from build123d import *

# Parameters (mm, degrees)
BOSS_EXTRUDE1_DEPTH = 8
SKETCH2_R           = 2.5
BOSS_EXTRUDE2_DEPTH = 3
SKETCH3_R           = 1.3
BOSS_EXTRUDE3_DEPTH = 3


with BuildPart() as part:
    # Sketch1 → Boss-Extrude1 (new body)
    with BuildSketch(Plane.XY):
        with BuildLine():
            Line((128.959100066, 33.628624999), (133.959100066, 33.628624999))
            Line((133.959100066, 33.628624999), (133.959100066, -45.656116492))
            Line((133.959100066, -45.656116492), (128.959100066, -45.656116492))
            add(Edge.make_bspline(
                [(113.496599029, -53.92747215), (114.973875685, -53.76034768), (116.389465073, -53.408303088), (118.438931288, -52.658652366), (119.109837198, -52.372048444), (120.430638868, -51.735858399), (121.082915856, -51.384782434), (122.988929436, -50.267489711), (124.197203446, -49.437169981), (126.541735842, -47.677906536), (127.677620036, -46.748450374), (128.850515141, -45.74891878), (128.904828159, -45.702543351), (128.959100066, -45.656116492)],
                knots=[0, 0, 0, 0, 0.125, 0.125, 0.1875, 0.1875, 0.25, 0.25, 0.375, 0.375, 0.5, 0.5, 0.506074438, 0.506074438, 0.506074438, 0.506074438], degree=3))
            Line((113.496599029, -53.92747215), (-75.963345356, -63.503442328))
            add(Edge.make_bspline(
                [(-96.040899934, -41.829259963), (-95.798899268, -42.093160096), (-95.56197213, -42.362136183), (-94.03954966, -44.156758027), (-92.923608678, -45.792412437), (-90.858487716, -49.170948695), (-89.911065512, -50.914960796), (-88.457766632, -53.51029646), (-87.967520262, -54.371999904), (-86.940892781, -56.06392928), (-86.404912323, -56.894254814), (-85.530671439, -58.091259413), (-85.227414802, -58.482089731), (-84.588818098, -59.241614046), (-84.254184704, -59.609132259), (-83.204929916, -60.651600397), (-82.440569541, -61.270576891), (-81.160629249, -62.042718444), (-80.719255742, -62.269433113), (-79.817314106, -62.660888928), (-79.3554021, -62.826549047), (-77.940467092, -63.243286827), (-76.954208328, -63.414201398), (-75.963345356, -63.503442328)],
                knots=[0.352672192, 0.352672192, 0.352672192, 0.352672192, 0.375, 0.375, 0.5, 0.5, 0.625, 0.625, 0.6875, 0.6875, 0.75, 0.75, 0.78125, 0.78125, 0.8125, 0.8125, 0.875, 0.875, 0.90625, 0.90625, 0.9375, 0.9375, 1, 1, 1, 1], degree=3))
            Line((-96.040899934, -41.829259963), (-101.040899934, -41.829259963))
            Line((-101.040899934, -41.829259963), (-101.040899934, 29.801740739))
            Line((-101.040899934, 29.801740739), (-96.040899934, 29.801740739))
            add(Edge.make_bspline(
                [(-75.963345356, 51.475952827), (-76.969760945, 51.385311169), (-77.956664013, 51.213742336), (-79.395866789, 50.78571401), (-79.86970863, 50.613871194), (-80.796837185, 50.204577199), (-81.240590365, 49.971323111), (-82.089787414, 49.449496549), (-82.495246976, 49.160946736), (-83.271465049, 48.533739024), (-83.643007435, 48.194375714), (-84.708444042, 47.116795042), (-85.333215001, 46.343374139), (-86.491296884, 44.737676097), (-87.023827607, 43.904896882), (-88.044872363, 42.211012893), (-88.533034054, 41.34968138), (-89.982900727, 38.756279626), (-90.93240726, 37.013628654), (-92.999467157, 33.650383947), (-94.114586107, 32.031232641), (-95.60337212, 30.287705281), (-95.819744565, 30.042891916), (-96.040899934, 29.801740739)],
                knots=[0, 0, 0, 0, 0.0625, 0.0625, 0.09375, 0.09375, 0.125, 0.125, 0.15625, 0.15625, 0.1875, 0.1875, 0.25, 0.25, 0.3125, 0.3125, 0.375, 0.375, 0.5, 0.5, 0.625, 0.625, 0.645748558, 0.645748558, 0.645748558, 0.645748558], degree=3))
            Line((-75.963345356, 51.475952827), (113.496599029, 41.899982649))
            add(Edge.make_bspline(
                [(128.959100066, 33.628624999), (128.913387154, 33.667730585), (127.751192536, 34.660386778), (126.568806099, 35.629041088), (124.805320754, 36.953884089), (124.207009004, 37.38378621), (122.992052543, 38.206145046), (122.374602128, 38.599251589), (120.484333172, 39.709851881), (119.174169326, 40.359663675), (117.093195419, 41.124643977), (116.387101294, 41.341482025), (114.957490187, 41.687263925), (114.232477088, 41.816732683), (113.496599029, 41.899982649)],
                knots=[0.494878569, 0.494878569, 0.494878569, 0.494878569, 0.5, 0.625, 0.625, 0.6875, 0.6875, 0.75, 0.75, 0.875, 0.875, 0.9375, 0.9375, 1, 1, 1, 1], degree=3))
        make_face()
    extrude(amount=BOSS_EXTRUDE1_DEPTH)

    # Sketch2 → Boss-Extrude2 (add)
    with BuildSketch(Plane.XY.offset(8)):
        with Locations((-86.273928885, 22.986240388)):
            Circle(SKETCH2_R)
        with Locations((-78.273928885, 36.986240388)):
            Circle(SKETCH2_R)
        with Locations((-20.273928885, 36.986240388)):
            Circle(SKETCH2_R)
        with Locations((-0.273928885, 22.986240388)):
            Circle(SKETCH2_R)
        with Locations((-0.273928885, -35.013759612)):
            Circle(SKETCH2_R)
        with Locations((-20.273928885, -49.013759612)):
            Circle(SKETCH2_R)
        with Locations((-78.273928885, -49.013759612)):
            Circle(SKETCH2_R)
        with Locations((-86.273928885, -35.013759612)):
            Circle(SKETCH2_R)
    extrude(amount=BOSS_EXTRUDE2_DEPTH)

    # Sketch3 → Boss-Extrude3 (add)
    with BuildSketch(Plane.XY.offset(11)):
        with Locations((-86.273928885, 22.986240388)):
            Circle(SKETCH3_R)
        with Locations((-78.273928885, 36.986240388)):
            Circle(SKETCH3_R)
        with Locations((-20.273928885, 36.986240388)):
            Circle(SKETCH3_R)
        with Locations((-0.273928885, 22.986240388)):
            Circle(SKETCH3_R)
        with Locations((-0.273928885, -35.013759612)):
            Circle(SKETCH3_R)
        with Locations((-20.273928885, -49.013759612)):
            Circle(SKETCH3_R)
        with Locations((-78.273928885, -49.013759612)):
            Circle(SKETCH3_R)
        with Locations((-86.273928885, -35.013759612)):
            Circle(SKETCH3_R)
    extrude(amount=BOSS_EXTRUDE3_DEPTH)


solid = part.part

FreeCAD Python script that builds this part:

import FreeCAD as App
import Part
import Sketcher

V = App.Vector

doc = App.newDocument("Part")
body = doc.addObject("PartDesign::Body", "Body")

# Sketch on XY plane
sketch1 = body.newObject("Sketcher::SketchObject", "Sketch")
sketch1.AttachmentSupport = (doc.getObject("XY_Plane"), [""])
sketch1.MapMode = "FlatFace"
sketch1.addGeometry([
    Part.LineSegment(V(133.9591, 33.628625, 0), V(128.9591, 33.628625, 0)),  # 0
    Part.BSplineCurve([V(128.9591, 33.628625, 0), V(128.913387, 33.667731, 0), V(127.751193, 34.660387, 0), V(126.568806, 35.629041, 0), V(124.805321, 36.953884, 0), V(124.207009, 37.383786, 0), V(122.992053, 38.206145, 0), V(122.374602, 38.599252, 0), V(120.484333, 39.709852, 0), V(119.174169, 40.359664, 0), V(117.093195, 41.124644, 0), V(116.387101, 41.341482, 0), V(114.95749, 41.687264, 0), V(114.232477, 41.816733, 0), V(113.496599, 41.899983, 0)], [4, 1, 2, 2, 2, 2, 2, 4], [0.494878569, 0.5, 0.625, 0.6875, 0.75, 0.875, 0.9375, 1], False, 3, [1, 1, 1, 1, 1, 1, 1, 1, 1, 1, 1, 1, 1, 1, 1], False),  # 1
    Part.LineSegment(V(113.496599, 41.899983, 0), V(-75.963345, 51.475953, 0)),  # 2
    Part.BSplineCurve([V(-75.963345, 51.475953, 0), V(-76.969761, 51.385311, 0), V(-77.956664, 51.213742, 0), V(-79.395867, 50.785714, 0), V(-79.869709, 50.613871, 0), V(-80.796837, 50.204577, 0), V(-81.24059, 49.971323, 0), V(-82.089787, 49.449497, 0), V(-82.495247, 49.160947, 0), V(-83.271465, 48.533739, 0), V(-83.643007, 48.194376, 0), V(-84.708444, 47.116795, 0), V(-85.333215, 46.343374, 0), V(-86.491297, 44.737676, 0), V(-87.023828, 43.904897, 0), V(-88.044872, 42.211013, 0), V(-88.533034, 41.349681, 0), V(-89.982901, 38.75628, 0), V(-90.932407, 37.013629, 0), V(-92.999467, 33.650384, 0), V(-94.114586, 32.031233, 0), V(-95.603372, 30.287705, 0), V(-95.819745, 30.042892, 0), V(-96.0409, 29.801741, 0)], [4, 2, 2, 2, 2, 2, 2, 2, 2, 2, 2, 4], [0, 0.0625, 0.09375, 0.125, 0.15625, 0.1875, 0.25, 0.3125, 0.375, 0.5, 0.625, 0.645748558], False, 3, [1, 1, 1, 1, 1, 1, 1, 1, 1, 1, 1, 1, 1, 1, 1, 1, 1, 1, 1, 1, 1, 1, 1, 1], False),  # 3
    Part.LineSegment(V(-96.0409, 29.801741, 0), V(-101.0409, 29.801741, 0)),  # 4
    Part.LineSegment(V(-101.0409, 29.801741, 0), V(-101.0409, -41.82926, 0)),  # 5
    Part.LineSegment(V(-101.0409, -41.82926, 0), V(-96.0409, -41.82926, 0)),  # 6
    Part.BSplineCurve([V(-96.0409, -41.82926, 0), V(-95.798899, -42.09316, 0), V(-95.561972, -42.362136, 0), V(-94.03955, -44.156758, 0), V(-92.923609, -45.792412, 0), V(-90.858488, -49.170949, 0), V(-89.911066, -50.914961, 0), V(-88.457767, -53.510296, 0), V(-87.96752, -54.372, 0), V(-86.940893, -56.063929, 0), V(-86.404912, -56.894255, 0), V(-85.530671, -58.091259, 0), V(-85.227415, -58.48209, 0), V(-84.588818, -59.241614, 0), V(-84.254185, -59.609132, 0), V(-83.20493, -60.6516, 0), V(-82.44057, -61.270577, 0), V(-81.160629, -62.042718, 0), V(-80.719256, -62.269433, 0), V(-79.817314, -62.660889, 0), V(-79.355402, -62.826549, 0), V(-77.940467, -63.243287, 0), V(-76.954208, -63.414201, 0), V(-75.963345, -63.503442, 0)], [4, 2, 2, 2, 2, 2, 2, 2, 2, 2, 2, 4], [0.352672192, 0.375, 0.5, 0.625, 0.6875, 0.75, 0.78125, 0.8125, 0.875, 0.90625, 0.9375, 1], False, 3, [1, 1, 1, 1, 1, 1, 1, 1, 1, 1, 1, 1, 1, 1, 1, 1, 1, 1, 1, 1, 1, 1, 1, 1], False),  # 7
    Part.LineSegment(V(-75.963345, -63.503442, 0), V(113.496599, -53.927472, 0)),  # 8
    Part.BSplineCurve([V(113.496599, -53.927472, 0), V(114.973876, -53.760348, 0), V(116.389465, -53.408303, 0), V(118.438931, -52.658652, 0), V(119.109837, -52.372048, 0), V(120.430639, -51.735858, 0), V(121.082916, -51.384782, 0), V(122.988929, -50.26749, 0), V(124.197203, -49.43717, 0), V(126.541736, -47.677907, 0), V(127.67762, -46.74845, 0), V(128.850515, -45.748919, 0), V(128.904828, -45.702543, 0), V(128.9591, -45.656116, 0)], [4, 2, 2, 2, 2, 2, 4], [0, 0.125, 0.1875, 0.25, 0.375, 0.5, 0.506074438], False, 3, [1, 1, 1, 1, 1, 1, 1, 1, 1, 1, 1, 1, 1, 1], False),  # 9
    Part.LineSegment(V(128.9591, -45.656116, 0), V(133.9591, -45.656116, 0)),  # 10
    Part.LineSegment(V(133.9591, -45.656116, 0), V(133.9591, 33.628625, 0)),  # 11
], False)
sketch1.addConstraint([
    Sketcher.Constraint("Block", 1),
    Sketcher.Constraint("Block", 3),
    Sketcher.Constraint("Block", 7),
    Sketcher.Constraint("Block", 9),
    Sketcher.Constraint("Coincident", 0, 2, 1, 1),
    Sketcher.Constraint("Coincident", 1, 2, 2, 1),
    Sketcher.Constraint("Coincident", 2, 2, 3, 1),
    Sketcher.Constraint("Coincident", 3, 2, 4, 1),
    Sketcher.Constraint("Coincident", 4, 2, 5, 1),
    Sketcher.Constraint("Coincident", 5, 2, 6, 1),
    Sketcher.Constraint("Coincident", 6, 2, 7, 1),
    Sketcher.Constraint("Coincident", 7, 2, 8, 1),
    Sketcher.Constraint("Coincident", 8, 2, 9, 1),
    Sketcher.Constraint("Coincident", 9, 2, 10, 1),
    Sketcher.Constraint("Coincident", 10, 2, 11, 1),
    Sketcher.Constraint("Coincident", 11, 2, 0, 1),
    Sketcher.Constraint("Horizontal", 0),
    Sketcher.Constraint("Horizontal", 4),
    Sketcher.Constraint("Vertical", 5),
    Sketcher.Constraint("Horizontal", 6),
    Sketcher.Constraint("Horizontal", 10),
    Sketcher.Constraint("Vertical", 11),
    Sketcher.Constraint("Equal", 0, 4),
    Sketcher.Constraint("DistanceX", 0, 2, 0, 1, 5.0),
])
pad1 = body.newObject("PartDesign::Pad", "Pad")
pad1.Profile = sketch1
pad1.Length = 8

# Sketch on XY plane
sketch2 = body.newObject("Sketcher::SketchObject", "Sketch001")
sketch2.AttachmentSupport = (doc.getObject("XY_Plane"), [""])
sketch2.MapMode = "FlatFace"
sketch2.AttachmentOffset = App.Placement(V(0, 0, 8), App.Rotation())
sketch2.addGeometry([
    Part.Circle(V(-86.3, 23, 0), V(0, 0, 1), 2.5),  # 0
    Part.Circle(V(-78.3, 37, 0), V(0, 0, 1), 2.5),  # 1
    Part.Circle(V(-20.3, 37, 0), V(0, 0, 1), 2.5),  # 2
    Part.Circle(V(-0.3, 23, 0), V(0, 0, 1), 2.5),  # 3
    Part.Circle(V(-0.3, -35, 0), V(0, 0, 1), 2.5),  # 4
    Part.Circle(V(-20.3, -49, 0), V(0, 0, 1), 2.5),  # 5
    Part.Circle(V(-78.3, -49, 0), V(0, 0, 1), 2.5),  # 6
    Part.Circle(V(-86.3, -35, 0), V(0, 0, 1), 2.5),  # 7
], False)
sketch2.addConstraint([
    Sketcher.Constraint("Equal", 0, 1),
    Sketcher.Constraint("Equal", 1, 2),
    Sketcher.Constraint("Equal", 2, 3),
    Sketcher.Constraint("Equal", 3, 4),
    Sketcher.Constraint("Equal", 4, 5),
    Sketcher.Constraint("Equal", 5, 6),
    Sketcher.Constraint("Equal", 6, 7),
    Sketcher.Constraint("Horizontal", 1, 3, 2, 3),
    Sketcher.Constraint("Horizontal", 0, 3, 3, 3),
    Sketcher.Constraint("Horizontal", 5, 3, 6, 3),
    Sketcher.Constraint("Horizontal", 4, 3, 7, 3),
    Sketcher.Constraint("Vertical", 3, 3, 4, 3),
    Sketcher.Constraint("Vertical", 2, 3, 5, 3),
    Sketcher.Constraint("Vertical", 1, 3, 6, 3),
    Sketcher.Constraint("Vertical", 0, 3, 7, 3),
    Sketcher.Constraint("Diameter", 0, 5.0),
    Sketcher.Constraint("DistanceX", 0, 3, 1, 3, 8.0),
    Sketcher.Constraint("DistanceY", 0, 3, 1, 3, 14.0),
    Sketcher.Constraint("DistanceX", 1, 3, 2, 3, 58.0),
    Sketcher.Constraint("DistanceX", 2, 3, 3, 3, 20.0),
    Sketcher.Constraint("DistanceY", 4, 3, 3, 3, 58.0),
    Sketcher.Constraint("DistanceY", 5, 3, 4, 3, 14.0),
    Sketcher.Constraint("DistanceX", 0, 3, -1, 1, 86.273929),
    Sketcher.Constraint("DistanceY", -1, 1, 0, 3, 22.98624),
])
pad2 = body.newObject("PartDesign::Pad", "Pad001")
pad2.Profile = sketch2
pad2.Length = 3

# Sketch on XY plane
sketch3 = body.newObject("Sketcher::SketchObject", "Sketch002")
sketch3.AttachmentSupport = (doc.getObject("XY_Plane"), [""])
sketch3.MapMode = "FlatFace"
sketch3.AttachmentOffset = App.Placement(V(0, 0, 11), App.Rotation())
sketch3.addGeometry([
    Part.Circle(V(-86.3, 23, 0), V(0, 0, 1), 1.3),  # 0
    Part.Circle(V(-78.3, 37, 0), V(0, 0, 1), 1.3),  # 1
    Part.Circle(V(-20.3, 37, 0), V(0, 0, 1), 1.3),  # 2
    Part.Circle(V(-0.3, 23, 0), V(0, 0, 1), 1.3),  # 3
    Part.Circle(V(-0.3, -35, 0), V(0, 0, 1), 1.3),  # 4
    Part.Circle(V(-20.3, -49, 0), V(0, 0, 1), 1.3),  # 5
    Part.Circle(V(-78.3, -49, 0), V(0, 0, 1), 1.3),  # 6
    Part.Circle(V(-86.3, -35, 0), V(0, 0, 1), 1.3),  # 7
], False)
sketch3.addConstraint([
    Sketcher.Constraint("Equal", 0, 1),
    Sketcher.Constraint("Equal", 1, 2),
    Sketcher.Constraint("Equal", 2, 3),
    Sketcher.Constraint("Equal", 3, 4),
    Sketcher.Constraint("Equal", 4, 5),
    Sketcher.Constraint("Equal", 5, 6),
    Sketcher.Constraint("Equal", 6, 7),
    Sketcher.Constraint("Horizontal", 1, 3, 2, 3),
    Sketcher.Constraint("Horizontal", 0, 3, 3, 3),
    Sketcher.Constraint("Horizontal", 5, 3, 6, 3),
    Sketcher.Constraint("Horizontal", 4, 3, 7, 3),
    Sketcher.Constraint("Vertical", 3, 3, 4, 3),
    Sketcher.Constraint("Vertical", 2, 3, 5, 3),
    Sketcher.Constraint("Vertical", 1, 3, 6, 3),
    Sketcher.Constraint("Vertical", 0, 3, 7, 3),
    Sketcher.Constraint("Diameter", 0, 2.6),
    Sketcher.Constraint("DistanceX", 0, 3, 1, 3, 8.0),
    Sketcher.Constraint("DistanceY", 0, 3, 1, 3, 14.0),
    Sketcher.Constraint("DistanceX", 1, 3, 2, 3, 58.0),
    Sketcher.Constraint("DistanceX", 2, 3, 3, 3, 20.0),
    Sketcher.Constraint("DistanceY", 4, 3, 3, 3, 58.0),
    Sketcher.Constraint("DistanceY", 5, 3, 4, 3, 14.0),
    Sketcher.Constraint("DistanceX", 0, 3, -1, 1, 86.273929),
    Sketcher.Constraint("DistanceY", -1, 1, 0, 3, 22.98624),
])
pad3 = body.newObject("PartDesign::Pad", "Pad002")
pad3.Profile = sketch3
pad3.Length = 3

doc.recompute()
